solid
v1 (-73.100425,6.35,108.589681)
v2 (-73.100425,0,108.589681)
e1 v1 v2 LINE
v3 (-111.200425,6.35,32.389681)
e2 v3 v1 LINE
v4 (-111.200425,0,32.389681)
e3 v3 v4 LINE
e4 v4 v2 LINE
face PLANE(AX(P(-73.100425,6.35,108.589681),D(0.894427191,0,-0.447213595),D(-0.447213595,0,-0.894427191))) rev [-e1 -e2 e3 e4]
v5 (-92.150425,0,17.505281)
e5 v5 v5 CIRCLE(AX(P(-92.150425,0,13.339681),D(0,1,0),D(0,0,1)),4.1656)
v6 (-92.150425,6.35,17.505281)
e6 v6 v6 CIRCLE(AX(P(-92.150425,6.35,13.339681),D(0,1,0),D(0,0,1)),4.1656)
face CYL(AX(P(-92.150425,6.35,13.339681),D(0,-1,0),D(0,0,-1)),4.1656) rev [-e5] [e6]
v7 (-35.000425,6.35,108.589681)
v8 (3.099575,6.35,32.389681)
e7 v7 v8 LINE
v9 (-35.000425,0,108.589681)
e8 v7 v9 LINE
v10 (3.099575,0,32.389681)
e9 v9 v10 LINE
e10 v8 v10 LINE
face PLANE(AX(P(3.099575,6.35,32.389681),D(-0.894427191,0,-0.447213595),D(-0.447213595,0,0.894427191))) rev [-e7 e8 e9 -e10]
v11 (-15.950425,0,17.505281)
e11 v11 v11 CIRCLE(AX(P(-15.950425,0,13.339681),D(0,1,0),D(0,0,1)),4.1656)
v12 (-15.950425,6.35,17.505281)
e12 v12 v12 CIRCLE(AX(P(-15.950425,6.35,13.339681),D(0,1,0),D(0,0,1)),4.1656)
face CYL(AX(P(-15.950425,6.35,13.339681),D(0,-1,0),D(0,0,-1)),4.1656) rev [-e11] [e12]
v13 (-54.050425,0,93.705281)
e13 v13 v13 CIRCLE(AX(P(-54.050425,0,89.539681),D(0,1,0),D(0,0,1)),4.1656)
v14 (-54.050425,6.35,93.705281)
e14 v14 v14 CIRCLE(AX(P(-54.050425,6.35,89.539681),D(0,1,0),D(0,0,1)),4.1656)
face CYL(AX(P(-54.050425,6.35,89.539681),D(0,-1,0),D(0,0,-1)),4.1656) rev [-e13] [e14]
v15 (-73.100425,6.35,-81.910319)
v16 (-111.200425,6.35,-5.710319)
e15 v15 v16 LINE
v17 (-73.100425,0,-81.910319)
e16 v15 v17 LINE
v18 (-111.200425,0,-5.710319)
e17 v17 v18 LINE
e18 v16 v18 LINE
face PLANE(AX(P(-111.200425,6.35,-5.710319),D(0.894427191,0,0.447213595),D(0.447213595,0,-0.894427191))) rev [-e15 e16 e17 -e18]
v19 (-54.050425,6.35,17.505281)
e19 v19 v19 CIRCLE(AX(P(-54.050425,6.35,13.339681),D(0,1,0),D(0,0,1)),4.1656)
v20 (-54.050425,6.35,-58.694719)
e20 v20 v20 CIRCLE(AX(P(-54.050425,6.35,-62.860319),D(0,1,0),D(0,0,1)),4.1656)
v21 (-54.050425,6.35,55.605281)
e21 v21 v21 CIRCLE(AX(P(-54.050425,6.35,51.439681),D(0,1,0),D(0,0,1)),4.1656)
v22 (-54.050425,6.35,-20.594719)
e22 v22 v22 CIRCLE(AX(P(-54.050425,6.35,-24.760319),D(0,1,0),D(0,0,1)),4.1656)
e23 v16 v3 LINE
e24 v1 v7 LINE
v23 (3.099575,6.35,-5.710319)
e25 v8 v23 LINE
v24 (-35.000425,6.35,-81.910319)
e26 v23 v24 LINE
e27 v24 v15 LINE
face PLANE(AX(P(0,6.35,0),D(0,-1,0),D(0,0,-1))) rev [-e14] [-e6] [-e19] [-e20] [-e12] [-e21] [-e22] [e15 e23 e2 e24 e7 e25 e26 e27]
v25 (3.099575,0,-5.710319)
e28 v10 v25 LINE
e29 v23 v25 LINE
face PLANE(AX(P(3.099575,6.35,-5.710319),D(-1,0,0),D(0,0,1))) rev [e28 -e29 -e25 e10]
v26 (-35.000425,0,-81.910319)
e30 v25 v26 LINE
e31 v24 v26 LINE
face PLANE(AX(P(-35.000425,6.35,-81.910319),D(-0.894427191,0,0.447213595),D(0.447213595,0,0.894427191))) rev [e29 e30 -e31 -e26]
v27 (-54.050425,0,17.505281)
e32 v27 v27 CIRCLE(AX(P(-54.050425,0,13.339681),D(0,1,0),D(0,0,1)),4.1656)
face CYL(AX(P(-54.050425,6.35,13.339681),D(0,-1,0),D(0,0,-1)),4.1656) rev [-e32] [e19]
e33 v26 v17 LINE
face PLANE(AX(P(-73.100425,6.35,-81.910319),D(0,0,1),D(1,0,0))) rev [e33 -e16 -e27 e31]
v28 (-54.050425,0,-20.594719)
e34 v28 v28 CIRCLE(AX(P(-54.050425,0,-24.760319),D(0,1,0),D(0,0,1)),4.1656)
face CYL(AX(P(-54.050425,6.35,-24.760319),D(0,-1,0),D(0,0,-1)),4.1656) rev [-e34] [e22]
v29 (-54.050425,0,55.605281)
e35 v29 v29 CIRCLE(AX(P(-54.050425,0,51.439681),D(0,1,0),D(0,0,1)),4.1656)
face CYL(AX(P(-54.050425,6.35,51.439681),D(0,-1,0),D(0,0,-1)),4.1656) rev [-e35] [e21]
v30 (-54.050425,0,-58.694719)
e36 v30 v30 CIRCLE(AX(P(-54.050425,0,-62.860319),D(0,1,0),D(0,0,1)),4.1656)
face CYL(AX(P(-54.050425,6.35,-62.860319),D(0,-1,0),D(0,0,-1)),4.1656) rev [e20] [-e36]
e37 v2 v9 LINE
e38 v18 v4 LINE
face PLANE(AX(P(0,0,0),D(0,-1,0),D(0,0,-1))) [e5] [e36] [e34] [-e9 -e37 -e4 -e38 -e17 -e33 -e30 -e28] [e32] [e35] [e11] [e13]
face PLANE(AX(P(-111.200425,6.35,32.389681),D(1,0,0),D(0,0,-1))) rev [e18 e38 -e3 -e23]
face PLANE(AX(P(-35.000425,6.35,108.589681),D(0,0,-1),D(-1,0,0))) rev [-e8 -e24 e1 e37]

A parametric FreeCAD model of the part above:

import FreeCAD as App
import Part
import Sketcher

V = App.Vector
Q = App.Units.Quantity

doc = App.newDocument("Part")
params = doc.addObject("Spreadsheet::Sheet", "Params")
for row, (alias, value) in enumerate([
    ("sketch1_diameter", "0.328 in"),
    ("sketch1_width", "1.5 in"),
    ("pad1_length", "0.25 in"),
], start=1):
    params.set(f"A{row}", alias)
    params.set(f"B{row}", "=" + value)
    params.setAlias(f"B{row}", alias)

body = doc.addObject("PartDesign::Body", "Body")

# Sketch on XZ plane
sketch1 = body.newObject("Sketcher::SketchObject", "Sketch")
sketch1.AttachmentSupport = (doc.getObject("XZ_Plane"), [""])
sketch1.MapMode = "FlatFace"
sketch1.addGeometry(Part.LineSegment(V(-35, -81.9, 0), V(-73.1, -81.9, 0)), False)
sketch1.addGeometry(Part.LineSegment(V(-73.1, -81.9, 0), V(-111.2, -5.7, 0)), False)
sketch1.addGeometry(Part.LineSegment(V(-111.2, -5.7, 0), V(-111.2, 32.4, 0)), False)
sketch1.addGeometry(Part.LineSegment(V(-111.2, 32.4, 0), V(-73.1, 108.6, 0)), False)
sketch1.addGeometry(Part.LineSegment(V(-73.1, 108.6, 0), V(-35, 108.6, 0)), False)
sketch1.addGeometry(Part.LineSegment(V(-35, 108.6, 0), V(3.1, 32.4, 0)), False)
sketch1.addGeometry(Part.LineSegment(V(3.1, 32.4, 0), V(3.1, -5.7, 0)), False)
sketch1.addGeometry(Part.LineSegment(V(3.1, -5.7, 0), V(-35, -81.9, 0)), False)
sketch1.addGeometry(Part.Circle(V(-54.1, 89.5, 0), V(0, 0, 1), 4.2), False)
sketch1.addGeometry(Part.Circle(V(-54.1, 51.4, 0), V(0, 0, 1), 4.2), False)
sketch1.addGeometry(Part.Circle(V(-16, 13.3, 0), V(0, 0, 1), 4.2), False)
sketch1.addGeometry(Part.Circle(V(-54.1, 13.3, 0), V(0, 0, 1), 4.2), False)
sketch1.addGeometry(Part.Circle(V(-54.1, -24.8, 0), V(0, 0, 1), 4.2), False)
sketch1.addGeometry(Part.Circle(V(-54.1, -62.9, 0), V(0, 0, 1), 4.2), False)
sketch1.addGeometry(Part.Circle(V(-92.2, 13.3, 0), V(0, 0, 1), 4.2), False)
sketch1.addConstraint(Sketcher.Constraint("Coincident", 0, 2, 1, 1))
sketch1.addConstraint(Sketcher.Constraint("Coincident", 1, 2, 2, 1))
sketch1.addConstraint(Sketcher.Constraint("Coincident", 2, 2, 3, 1))
sketch1.addConstraint(Sketcher.Constraint("Coincident", 3, 2, 4, 1))
sketch1.addConstraint(Sketcher.Constraint("Coincident", 4, 2, 5, 1))
sketch1.addConstraint(Sketcher.Constraint("Coincident", 5, 2, 6, 1))
sketch1.addConstraint(Sketcher.Constraint("Coincident", 6, 2, 7, 1))
sketch1.addConstraint(Sketcher.Constraint("Coincident", 7, 2, 0, 1))
sketch1.addConstraint(Sketcher.Constraint("Horizontal", 0))
sketch1.addConstraint(Sketcher.Constraint("Vertical", 2))
sketch1.addConstraint(Sketcher.Constraint("Horizontal", 4))
sketch1.addConstraint(Sketcher.Constraint("Vertical", 6))
sketch1.addConstraint(Sketcher.Constraint("Equal", 8, 9))
sketch1.addConstraint(Sketcher.Constraint("Equal", 9, 10))
sketch1.addConstraint(Sketcher.Constraint("Equal", 10, 11))
sketch1.addConstraint(Sketcher.Constraint("Equal", 11, 12))
sketch1.addConstraint(Sketcher.Constraint("Equal", 12, 13))
sketch1.addConstraint(Sketcher.Constraint("Equal", 13, 14))
sketch1.addConstraint(Sketcher.Constraint("Parallel", 1, 5))
sketch1.addConstraint(Sketcher.Constraint("Parallel", 3, 7))
sketch1.addConstraint(Sketcher.Constraint("Horizontal", 10, 3, 11, 3))
sketch1.addConstraint(Sketcher.Constraint("Horizontal", 11, 3, 14, 3))
sketch1.addConstraint(Sketcher.Constraint("Horizontal", 2, 2, 5, 2))
sketch1.addConstraint(Sketcher.Constraint("Horizontal", 1, 2, 6, 2))
sketch1.addConstraint(Sketcher.Constraint("Vertical", 8, 3, 9, 3))
sketch1.addConstraint(Sketcher.Constraint("Vertical", 9, 3, 11, 3))
sketch1.addConstraint(Sketcher.Constraint("Vertical", 11, 3, 12, 3))
sketch1.addConstraint(Sketcher.Constraint("Vertical", 12, 3, 13, 3))
sketch1.addConstraint(Sketcher.Constraint("Vertical", 0, 2, 3, 2))
sketch1.addConstraint(Sketcher.Constraint("Vertical", 4, 2, 7, 2))
sketch1.addConstraint(Sketcher.Constraint("Equal", 4, 2))
sketch1.addConstraint(Sketcher.Constraint("Diameter", 8, Q("0.328 in")))
sketch1.addConstraint(Sketcher.Constraint("DistanceX", 0, 2, 0, 1, Q("1.5 in")))
sketch1.addConstraint(Sketcher.Constraint("DistanceY", 10, 3, 8, 3, Q("3 in")))
sketch1.addConstraint(Sketcher.Constraint("DistanceY", 12, 3, 9, 3, Q("3 in")))
sketch1.addConstraint(Sketcher.Constraint("DistanceY", 13, 3, 11, 3, Q("3 in")))
sketch1.addConstraint(Sketcher.Constraint("DistanceX", 14, 3, 10, 3, Q("3 in")))
sketch1.addConstraint(Sketcher.Constraint("DistanceY", 2, 2, 3, 2, Q("3 in")))
sketch1.addConstraint(Sketcher.Constraint("DistanceY", 9, 3, 8, 3, Q("1.5 in")))
sketch1.addConstraint(Sketcher.Constraint("DistanceX", 9, 3, 10, 3, Q("1.5 in")))
sketch1.addConstraint(Sketcher.Constraint("DistanceX", 2, 2, 3, 2, Q("1.5 in")))
sketch1.addConstraint(Sketcher.Constraint("DistanceX", 0, 2, 13, 3, Q("0.75 in")))
sketch1.addConstraint(Sketcher.Constraint("DistanceY", 0, 2, 13, 3, Q("0.75 in")))
sketch1.addConstraint(Sketcher.Constraint("DistanceY", -1, 1, 8, 3, Q("89.539681 mm")))
sketch1.addConstraint(Sketcher.Constraint("DistanceX", 8, 3, -1, 1, Q("54.050425 mm")))
sketch1.setExpression("Constraints[31]", "Params.sketch1_diameter")
sketch1.setExpression("Constraints[32]", "Params.sketch1_width")
pad1 = body.newObject("PartDesign::Pad", "Pad")
pad1.Profile = sketch1
pad1.setExpression("Length", "Params.pad1_length")
pad1.Reversed = True

doc.recompute()
